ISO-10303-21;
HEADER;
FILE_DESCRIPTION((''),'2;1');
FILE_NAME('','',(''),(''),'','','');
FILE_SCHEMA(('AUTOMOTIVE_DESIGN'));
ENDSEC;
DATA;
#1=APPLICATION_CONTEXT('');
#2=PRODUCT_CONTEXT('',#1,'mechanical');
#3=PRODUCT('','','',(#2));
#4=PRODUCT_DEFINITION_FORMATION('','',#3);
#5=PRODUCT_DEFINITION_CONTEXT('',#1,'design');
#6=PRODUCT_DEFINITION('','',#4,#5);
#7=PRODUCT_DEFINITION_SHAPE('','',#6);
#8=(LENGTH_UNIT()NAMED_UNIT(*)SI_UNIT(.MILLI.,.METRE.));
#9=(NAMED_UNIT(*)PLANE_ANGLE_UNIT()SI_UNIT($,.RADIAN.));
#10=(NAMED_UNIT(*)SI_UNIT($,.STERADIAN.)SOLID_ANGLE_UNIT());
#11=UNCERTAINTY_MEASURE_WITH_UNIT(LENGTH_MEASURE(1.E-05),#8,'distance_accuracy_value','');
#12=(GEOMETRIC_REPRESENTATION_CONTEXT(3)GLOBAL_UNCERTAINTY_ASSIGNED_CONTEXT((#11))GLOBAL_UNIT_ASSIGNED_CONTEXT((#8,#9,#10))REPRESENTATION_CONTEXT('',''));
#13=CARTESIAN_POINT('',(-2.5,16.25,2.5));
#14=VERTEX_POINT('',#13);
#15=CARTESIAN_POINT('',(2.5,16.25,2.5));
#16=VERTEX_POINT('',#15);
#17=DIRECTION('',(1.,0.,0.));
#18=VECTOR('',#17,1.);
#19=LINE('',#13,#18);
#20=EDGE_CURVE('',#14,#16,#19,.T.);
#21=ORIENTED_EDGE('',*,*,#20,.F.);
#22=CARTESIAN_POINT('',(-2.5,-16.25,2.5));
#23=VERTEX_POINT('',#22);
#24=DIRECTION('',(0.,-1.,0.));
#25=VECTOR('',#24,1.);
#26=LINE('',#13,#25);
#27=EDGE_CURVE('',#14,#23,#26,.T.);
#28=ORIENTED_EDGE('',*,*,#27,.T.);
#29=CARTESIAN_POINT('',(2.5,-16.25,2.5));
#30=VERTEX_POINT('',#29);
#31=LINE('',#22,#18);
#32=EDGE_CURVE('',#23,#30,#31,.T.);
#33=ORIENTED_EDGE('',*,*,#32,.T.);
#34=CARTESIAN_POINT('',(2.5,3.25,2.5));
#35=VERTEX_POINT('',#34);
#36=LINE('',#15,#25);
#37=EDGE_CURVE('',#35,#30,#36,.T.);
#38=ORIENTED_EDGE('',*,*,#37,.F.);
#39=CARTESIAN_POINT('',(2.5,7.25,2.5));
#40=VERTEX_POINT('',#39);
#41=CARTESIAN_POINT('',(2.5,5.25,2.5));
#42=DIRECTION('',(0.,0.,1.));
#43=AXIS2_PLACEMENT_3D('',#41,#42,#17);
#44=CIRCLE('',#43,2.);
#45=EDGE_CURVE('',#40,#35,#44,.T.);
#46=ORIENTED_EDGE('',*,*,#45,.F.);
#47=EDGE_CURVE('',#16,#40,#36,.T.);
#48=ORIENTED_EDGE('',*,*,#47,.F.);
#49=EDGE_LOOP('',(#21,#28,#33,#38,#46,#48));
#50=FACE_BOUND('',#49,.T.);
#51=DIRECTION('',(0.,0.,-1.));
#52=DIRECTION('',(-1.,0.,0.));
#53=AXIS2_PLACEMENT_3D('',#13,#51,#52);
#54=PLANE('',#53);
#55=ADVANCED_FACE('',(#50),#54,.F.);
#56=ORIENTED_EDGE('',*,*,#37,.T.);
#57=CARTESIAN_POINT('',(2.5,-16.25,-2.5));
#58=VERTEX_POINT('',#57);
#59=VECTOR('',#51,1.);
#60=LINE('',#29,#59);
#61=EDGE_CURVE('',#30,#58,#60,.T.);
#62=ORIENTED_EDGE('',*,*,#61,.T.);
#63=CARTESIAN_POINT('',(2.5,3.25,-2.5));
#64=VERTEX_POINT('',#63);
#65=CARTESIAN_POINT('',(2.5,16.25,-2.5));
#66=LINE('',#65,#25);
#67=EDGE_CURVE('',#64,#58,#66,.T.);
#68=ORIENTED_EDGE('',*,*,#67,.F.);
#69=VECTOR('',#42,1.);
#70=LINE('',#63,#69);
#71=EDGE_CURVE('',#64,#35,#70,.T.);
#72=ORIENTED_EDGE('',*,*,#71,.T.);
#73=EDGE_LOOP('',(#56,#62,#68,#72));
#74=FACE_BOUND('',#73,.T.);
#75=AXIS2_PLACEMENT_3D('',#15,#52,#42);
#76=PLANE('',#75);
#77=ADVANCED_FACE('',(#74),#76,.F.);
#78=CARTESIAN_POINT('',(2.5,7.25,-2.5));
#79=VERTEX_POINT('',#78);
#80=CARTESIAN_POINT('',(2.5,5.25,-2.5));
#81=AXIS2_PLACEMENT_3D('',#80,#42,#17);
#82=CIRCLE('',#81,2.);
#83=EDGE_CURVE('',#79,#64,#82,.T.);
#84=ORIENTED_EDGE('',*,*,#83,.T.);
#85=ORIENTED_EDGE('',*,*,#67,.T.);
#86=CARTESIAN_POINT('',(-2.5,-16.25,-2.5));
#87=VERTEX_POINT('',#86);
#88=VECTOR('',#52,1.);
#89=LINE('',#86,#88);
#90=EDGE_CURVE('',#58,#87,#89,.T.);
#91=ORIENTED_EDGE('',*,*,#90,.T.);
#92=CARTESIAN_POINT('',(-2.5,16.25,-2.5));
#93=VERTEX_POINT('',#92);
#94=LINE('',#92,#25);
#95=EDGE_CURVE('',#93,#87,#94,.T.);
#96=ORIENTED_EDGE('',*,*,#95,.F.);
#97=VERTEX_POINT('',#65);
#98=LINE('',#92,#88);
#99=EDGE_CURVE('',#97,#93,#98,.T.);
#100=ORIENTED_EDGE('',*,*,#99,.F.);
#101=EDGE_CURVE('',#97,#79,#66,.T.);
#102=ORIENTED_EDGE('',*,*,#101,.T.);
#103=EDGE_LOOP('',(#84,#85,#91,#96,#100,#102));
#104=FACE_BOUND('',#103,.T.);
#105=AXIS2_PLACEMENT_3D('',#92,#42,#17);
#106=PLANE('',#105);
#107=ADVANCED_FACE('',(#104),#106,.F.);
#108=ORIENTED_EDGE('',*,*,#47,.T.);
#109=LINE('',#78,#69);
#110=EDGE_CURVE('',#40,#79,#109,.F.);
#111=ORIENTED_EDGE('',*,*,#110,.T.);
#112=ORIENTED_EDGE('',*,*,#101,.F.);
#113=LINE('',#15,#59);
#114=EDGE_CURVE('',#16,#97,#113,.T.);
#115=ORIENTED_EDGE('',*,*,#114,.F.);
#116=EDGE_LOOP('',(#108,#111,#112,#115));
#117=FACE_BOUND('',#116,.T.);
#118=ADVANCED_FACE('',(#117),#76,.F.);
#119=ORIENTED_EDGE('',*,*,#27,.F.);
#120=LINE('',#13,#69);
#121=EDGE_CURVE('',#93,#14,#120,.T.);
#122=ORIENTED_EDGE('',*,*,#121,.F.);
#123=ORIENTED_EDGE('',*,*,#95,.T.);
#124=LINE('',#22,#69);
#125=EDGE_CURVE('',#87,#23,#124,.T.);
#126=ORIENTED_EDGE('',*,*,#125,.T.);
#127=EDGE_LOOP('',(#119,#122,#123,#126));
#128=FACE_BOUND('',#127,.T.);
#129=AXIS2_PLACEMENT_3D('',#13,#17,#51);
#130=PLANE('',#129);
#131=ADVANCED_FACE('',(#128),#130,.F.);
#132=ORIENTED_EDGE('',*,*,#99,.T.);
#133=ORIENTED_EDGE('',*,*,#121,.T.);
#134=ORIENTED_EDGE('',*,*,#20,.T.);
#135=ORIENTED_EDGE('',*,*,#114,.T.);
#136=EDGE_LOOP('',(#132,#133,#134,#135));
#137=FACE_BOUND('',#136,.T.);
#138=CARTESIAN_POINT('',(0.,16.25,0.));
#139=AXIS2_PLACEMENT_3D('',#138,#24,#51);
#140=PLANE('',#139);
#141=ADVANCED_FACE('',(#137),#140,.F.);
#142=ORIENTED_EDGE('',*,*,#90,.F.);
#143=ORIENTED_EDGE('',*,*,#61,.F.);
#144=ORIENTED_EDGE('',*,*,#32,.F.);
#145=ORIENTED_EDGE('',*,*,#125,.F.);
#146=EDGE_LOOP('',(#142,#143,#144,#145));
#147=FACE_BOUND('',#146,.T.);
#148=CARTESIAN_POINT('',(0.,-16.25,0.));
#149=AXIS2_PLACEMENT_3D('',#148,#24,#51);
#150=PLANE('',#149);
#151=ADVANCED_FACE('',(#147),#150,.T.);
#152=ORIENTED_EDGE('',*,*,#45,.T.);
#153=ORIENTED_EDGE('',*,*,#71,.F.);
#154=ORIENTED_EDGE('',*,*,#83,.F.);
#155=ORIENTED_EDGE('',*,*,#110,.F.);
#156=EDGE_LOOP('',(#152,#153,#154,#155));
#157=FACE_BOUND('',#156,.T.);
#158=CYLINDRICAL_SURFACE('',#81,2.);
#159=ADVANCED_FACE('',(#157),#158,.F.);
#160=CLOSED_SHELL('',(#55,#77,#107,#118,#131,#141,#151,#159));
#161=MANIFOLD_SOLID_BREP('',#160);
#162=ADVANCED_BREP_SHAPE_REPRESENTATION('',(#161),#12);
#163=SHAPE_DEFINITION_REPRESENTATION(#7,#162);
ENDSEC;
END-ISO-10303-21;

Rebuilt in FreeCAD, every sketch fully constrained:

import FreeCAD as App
import Part
import Sketcher
from FreeCAD import Vector

doc = App.newDocument("Part")
body = doc.addObject("PartDesign::Body", "Body")

# Sketch on XZ plane
sketch1 = body.newObject("Sketcher::SketchObject", "Sketch")
sketch1.AttachmentSupport = (doc.getObject("XZ_Plane"), [""])
sketch1.MapMode = "FlatFace"
sketch1.addGeometry([
    Part.LineSegment(Vector(-2, -2, 0), Vector(-2, 2, 0)),
    Part.LineSegment(Vector(-2, 2, 0), Vector(2, 2, 0)),
    Part.LineSegment(Vector(2, 2, 0), Vector(2, -2, 0)),
    Part.LineSegment(Vector(2, -2, 0), Vector(-2, -2, 0)),
], False)
sketch1.addConstraint([
    Sketcher.Constraint("Coincident", 0, 2, 1, 1),
    Sketcher.Constraint("Coincident", 1, 2, 2, 1),
    Sketcher.Constraint("Coincident", 2, 2, 3, 1),
    Sketcher.Constraint("Coincident", 3, 2, 0, 1),
    Sketcher.Constraint("Vertical", 0),
    Sketcher.Constraint("Horizontal", 1),
    Sketcher.Constraint("Vertical", 2),
    Sketcher.Constraint("Horizontal", 3),
    Sketcher.Constraint("Symmetric", 0, 2, 2, 2, -1, 1),
    Sketcher.Constraint("Equal", 3, 0),
    Sketcher.Constraint("DistanceX", 1, 1, 1, 2, 5.0),
])
pad1 = body.newObject("PartDesign::Pad", "Pad")
pad1.Profile = sketch1
pad1.Length = 32.5
pad1.Midplane = True

# Sketch on XY plane
sketch2 = body.newObject("Sketcher::SketchObject", "Sketch001")
sketch2.AttachmentSupport = (doc.getObject("XY_Plane"), [""])
sketch2.MapMode = "FlatFace"
sketch2.AttachmentOffset = App.Placement(Vector(0, 0, 2.5), App.Rotation())
sketch2.addGeometry(Part.Circle(Vector(2.5, 5.2, 0), Vector(0, 0, 1), 2), False)
sketch2.addConstraint([
    Sketcher.Constraint("Diameter", 0, 4.0),
    Sketcher.Constraint("DistanceX", -1, 1, 0, 3, 2.5),
    Sketcher.Constraint("DistanceY", -1, 1, 0, 3, 5.25),
])
pocket1 = body.newObject("PartDesign::Pocket", "Pocket")
pocket1.Profile = sketch2
pocket1.Type = "ThroughAll"

doc.recompute()
